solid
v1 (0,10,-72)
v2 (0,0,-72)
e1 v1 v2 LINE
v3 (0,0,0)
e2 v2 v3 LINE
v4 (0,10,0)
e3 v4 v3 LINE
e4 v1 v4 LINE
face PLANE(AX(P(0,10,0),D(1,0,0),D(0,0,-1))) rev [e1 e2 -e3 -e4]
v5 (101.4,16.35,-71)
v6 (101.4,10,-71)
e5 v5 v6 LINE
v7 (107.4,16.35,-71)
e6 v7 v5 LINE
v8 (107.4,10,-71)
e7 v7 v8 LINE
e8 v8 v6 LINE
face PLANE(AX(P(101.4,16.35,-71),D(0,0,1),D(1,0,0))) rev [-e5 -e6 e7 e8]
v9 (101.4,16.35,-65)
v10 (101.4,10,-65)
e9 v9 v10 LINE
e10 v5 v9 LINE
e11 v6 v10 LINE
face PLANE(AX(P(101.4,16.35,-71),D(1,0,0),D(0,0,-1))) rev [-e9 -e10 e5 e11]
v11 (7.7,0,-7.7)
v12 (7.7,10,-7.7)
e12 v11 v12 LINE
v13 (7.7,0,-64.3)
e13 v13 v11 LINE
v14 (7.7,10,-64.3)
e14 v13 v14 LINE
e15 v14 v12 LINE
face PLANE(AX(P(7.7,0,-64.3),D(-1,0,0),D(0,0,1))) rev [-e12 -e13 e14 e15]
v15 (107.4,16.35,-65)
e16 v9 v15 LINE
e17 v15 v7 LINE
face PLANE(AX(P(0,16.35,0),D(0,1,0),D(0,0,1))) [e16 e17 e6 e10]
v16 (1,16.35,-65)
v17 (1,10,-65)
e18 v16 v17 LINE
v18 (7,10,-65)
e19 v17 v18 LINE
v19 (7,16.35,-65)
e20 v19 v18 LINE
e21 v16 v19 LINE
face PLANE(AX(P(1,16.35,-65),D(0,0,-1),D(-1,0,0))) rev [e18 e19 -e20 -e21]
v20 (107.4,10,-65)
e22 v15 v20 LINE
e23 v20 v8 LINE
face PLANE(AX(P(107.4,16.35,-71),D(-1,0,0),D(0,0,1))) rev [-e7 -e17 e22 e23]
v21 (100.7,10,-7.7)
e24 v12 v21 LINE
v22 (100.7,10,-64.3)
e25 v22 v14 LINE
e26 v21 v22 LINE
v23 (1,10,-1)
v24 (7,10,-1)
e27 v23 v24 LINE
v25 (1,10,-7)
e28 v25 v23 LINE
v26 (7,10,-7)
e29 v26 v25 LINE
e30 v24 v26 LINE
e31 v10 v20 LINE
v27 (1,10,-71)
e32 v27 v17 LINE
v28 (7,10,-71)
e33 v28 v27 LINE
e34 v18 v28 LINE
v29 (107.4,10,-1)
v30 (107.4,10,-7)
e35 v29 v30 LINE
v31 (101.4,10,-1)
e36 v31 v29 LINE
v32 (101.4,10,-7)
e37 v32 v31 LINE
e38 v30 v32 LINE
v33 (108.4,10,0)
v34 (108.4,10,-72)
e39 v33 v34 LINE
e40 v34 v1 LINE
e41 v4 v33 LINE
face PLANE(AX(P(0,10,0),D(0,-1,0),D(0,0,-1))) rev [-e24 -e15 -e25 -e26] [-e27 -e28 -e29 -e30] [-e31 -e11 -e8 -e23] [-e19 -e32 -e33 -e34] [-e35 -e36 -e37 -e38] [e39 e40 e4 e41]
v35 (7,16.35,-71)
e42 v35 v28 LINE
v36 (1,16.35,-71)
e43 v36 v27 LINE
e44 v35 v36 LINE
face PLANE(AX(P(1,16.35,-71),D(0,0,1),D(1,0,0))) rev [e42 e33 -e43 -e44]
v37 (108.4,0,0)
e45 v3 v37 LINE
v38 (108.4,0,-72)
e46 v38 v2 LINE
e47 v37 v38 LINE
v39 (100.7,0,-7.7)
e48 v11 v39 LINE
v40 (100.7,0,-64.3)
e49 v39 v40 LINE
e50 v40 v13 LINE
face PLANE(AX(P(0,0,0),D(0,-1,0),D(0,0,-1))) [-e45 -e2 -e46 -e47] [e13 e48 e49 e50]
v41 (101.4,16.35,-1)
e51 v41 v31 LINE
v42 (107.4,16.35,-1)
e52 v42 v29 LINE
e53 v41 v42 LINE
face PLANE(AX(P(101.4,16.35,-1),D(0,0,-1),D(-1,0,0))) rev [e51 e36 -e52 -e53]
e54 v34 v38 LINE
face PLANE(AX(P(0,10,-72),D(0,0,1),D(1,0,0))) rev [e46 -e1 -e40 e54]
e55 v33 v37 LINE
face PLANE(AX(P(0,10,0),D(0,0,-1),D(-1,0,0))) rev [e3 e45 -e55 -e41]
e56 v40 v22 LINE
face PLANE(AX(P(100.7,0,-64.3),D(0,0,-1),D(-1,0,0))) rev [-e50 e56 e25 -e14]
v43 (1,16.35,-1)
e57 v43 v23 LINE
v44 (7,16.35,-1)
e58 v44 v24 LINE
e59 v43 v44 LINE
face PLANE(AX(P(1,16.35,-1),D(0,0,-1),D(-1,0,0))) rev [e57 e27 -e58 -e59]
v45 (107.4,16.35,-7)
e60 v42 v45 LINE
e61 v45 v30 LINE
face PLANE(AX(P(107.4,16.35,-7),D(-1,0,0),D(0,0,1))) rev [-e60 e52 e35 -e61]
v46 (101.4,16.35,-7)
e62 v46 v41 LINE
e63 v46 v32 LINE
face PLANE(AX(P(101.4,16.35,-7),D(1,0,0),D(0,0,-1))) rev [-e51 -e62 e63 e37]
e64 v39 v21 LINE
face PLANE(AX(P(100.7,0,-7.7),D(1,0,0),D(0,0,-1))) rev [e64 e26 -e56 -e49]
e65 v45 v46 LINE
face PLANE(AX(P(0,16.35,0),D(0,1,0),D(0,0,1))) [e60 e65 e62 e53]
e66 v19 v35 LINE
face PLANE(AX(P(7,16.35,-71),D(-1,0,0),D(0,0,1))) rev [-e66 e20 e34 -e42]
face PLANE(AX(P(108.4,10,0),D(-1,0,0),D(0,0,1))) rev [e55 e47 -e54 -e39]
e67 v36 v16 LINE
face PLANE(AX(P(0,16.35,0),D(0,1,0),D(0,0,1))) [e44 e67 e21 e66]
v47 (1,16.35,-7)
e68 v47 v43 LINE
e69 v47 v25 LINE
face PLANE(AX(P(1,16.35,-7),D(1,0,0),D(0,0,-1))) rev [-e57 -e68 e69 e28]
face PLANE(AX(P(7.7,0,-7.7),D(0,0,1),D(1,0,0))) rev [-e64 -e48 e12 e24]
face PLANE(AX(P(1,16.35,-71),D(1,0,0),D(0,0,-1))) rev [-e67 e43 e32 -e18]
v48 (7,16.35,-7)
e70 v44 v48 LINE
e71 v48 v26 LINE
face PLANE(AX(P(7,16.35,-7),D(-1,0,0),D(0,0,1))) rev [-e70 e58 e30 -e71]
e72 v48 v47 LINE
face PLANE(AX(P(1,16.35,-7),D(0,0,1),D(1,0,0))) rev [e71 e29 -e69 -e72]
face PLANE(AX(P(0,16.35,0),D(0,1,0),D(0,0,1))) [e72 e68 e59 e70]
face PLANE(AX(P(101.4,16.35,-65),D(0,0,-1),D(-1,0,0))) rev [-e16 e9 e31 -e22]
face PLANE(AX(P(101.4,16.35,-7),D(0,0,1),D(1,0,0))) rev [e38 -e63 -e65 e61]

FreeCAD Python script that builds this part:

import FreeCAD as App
import Part
import Sketcher

V = App.Vector
Q = App.Units.Quantity

doc = App.newDocument("Part")
body = doc.addObject("PartDesign::Body", "Body")

sketch1 = doc.addObject("Sketcher::SketchObject", "Sketch")
body.addObject(sketch1)
sketch1.AttachmentSupport = (doc.XZ_Plane, [""])
sketch1.MapMode = "FlatFace"
sketch1.addGeometry(Part.LineSegment(V(0, -72, 0), V(0, 0, 0)), False)
sketch1.addGeometry(Part.LineSegment(V(0, 0, 0), V(108, 0, 0)), False)
sketch1.addGeometry(Part.LineSegment(V(108, 0, 0), V(108, -72, 0)), False)
sketch1.addGeometry(Part.LineSegment(V(108, -72, 0), V(0, -72, 0)), False)
sketch1.addConstraint(Sketcher.Constraint("Coincident", 0, 2, 1, 1))
sketch1.addConstraint(Sketcher.Constraint("Coincident", 1, 2, 2, 1))
sketch1.addConstraint(Sketcher.Constraint("Coincident", 2, 2, 3, 1))
sketch1.addConstraint(Sketcher.Constraint("Coincident", 3, 2, 0, 1))
sketch1.addConstraint(Sketcher.Constraint("Vertical", 0))
sketch1.addConstraint(Sketcher.Constraint("Horizontal", 1))
sketch1.addConstraint(Sketcher.Constraint("Vertical", 2))
sketch1.addConstraint(Sketcher.Constraint("Horizontal", 3))
sketch1.addConstraint(Sketcher.Constraint("Coincident", 0, 2, -1, 1))
sketch1.addConstraint(Sketcher.Constraint("DistanceY", 0, 1, 0, 2, Q("72 mm")))
sketch1.addConstraint(Sketcher.Constraint("DistanceX", 1, 1, 1, 2, Q("108.4 mm")))
pad1 = doc.addObject("PartDesign::Pad", "Pad")
body.addObject(pad1)
pad1.Profile = sketch1
pad1.Length = 10
pad1.Reversed = True

sketch2 = doc.addObject("Sketcher::SketchObject", "Sketch001")
body.addObject(sketch2)
sketch2.AttachmentSupport = (doc.XZ_Plane, [""])
sketch2.MapMode = "FlatFace"
sketch2.AttachmentOffset = App.Placement(V(0, 0, -10), App.Rotation())
sketch2.addGeometry(Part.LineSegment(V(8, -64, 0), V(8, -8, 0)), False)
sketch2.addGeometry(Part.LineSegment(V(8, -8, 0), V(101, -8, 0)), False)
sketch2.addGeometry(Part.LineSegment(V(101, -8, 0), V(101, -64, 0)), False)
sketch2.addGeometry(Part.LineSegment(V(101, -64, 0), V(8, -64, 0)), False)
sketch2.addConstraint(Sketcher.Constraint("Coincident", 0, 2, 1, 1))
sketch2.addConstraint(Sketcher.Constraint("Coincident", 1, 2, 2, 1))
sketch2.addConstraint(Sketcher.Constraint("Coincident", 2, 2, 3, 1))
sketch2.addConstraint(Sketcher.Constraint("Coincident", 3, 2, 0, 1))
sketch2.addConstraint(Sketcher.Constraint("Vertical", 0))
sketch2.addConstraint(Sketcher.Constraint("Horizontal", 1))
sketch2.addConstraint(Sketcher.Constraint("Vertical", 2))
sketch2.addConstraint(Sketcher.Constraint("Horizontal", 3))
sketch2.addConstraint(Sketcher.Constraint("DistanceX", 1, 1, 1, 2, Q("93 mm")))
sketch2.addConstraint(Sketcher.Constraint("DistanceY", 0, 1, 0, 2, Q("56.6 mm")))
sketch2.addConstraint(Sketcher.Constraint("DistanceX", -1, 1, 0, 2, Q("7.7 mm")))
sketch2.addConstraint(Sketcher.Constraint("DistanceY", 0, 2, -1, 1, Q("7.7 mm")))
pocket1 = doc.addObject("PartDesign::Pocket", "Pocket")
body.addObject(pocket1)
pocket1.Profile = sketch2
pocket1.Type = "ThroughAll"
pocket1.Reversed = True

sketch3 = doc.addObject("Sketcher::SketchObject", "Sketch002")
body.addObject(sketch3)
sketch3.AttachmentSupport = (doc.XZ_Plane, [""])
sketch3.MapMode = "FlatFace"
sketch3.AttachmentOffset = App.Placement(V(0, 0, -10), App.Rotation())
sketch3.addGeometry(Part.LineSegment(V(1, -7, 0), V(1, -1, 0)), False)
sketch3.addGeometry(Part.LineSegment(V(1, -1, 0), V(7, -1, 0)), False)
sketch3.addGeometry(Part.LineSegment(V(7, -1, 0), V(7, -7, 0)), False)
sketch3.addGeometry(Part.LineSegment(V(7, -7, 0), V(1, -7, 0)), False)
sketch3.addConstraint(Sketcher.Constraint("Coincident", 0, 2, 1, 1))
sketch3.addConstraint(Sketcher.Constraint("Coincident", 1, 2, 2, 1))
sketch3.addConstraint(Sketcher.Constraint("Coincident", 2, 2, 3, 1))
sketch3.addConstraint(Sketcher.Constraint("Coincident", 3, 2, 0, 1))
sketch3.addConstraint(Sketcher.Constraint("Vertical", 0))
sketch3.addConstraint(Sketcher.Constraint("Horizontal", 1))
sketch3.addConstraint(Sketcher.Constraint("Vertical", 2))
sketch3.addConstraint(Sketcher.Constraint("Horizontal", 3))
sketch3.addConstraint(Sketcher.Constraint("Equal", 3, 0))
sketch3.addConstraint(Sketcher.Constraint("DistanceX", 1, 1, 1, 2, Q("6 mm")))
sketch3.addConstraint(Sketcher.Constraint("DistanceX", -1, 1, 0, 2, Q("1 mm")))
sketch3.addConstraint(Sketcher.Constraint("DistanceY", 0, 2, -1, 1, Q("1 mm")))
pad2 = doc.addObject("PartDesign::Pad", "Pad001")
body.addObject(pad2)
pad2.Profile = sketch3
pad2.Length = 6.35
pad2.Reversed = True

sketch4 = doc.addObject("Sketcher::SketchObject", "Sketch003")
body.addObject(sketch4)
sketch4.AttachmentSupport = (doc.XZ_Plane, [""])
sketch4.MapMode = "FlatFace"
sketch4.AttachmentOffset = App.Placement(V(0, 0, -10), App.Rotation())
sketch4.addGeometry(Part.LineSegment(V(101, -7, 0), V(101, -1, 0)), False)
sketch4.addGeometry(Part.LineSegment(V(101, -1, 0), V(107, -1, 0)), False)
sketch4.addGeometry(Part.LineSegment(V(107, -1, 0), V(107, -7, 0)), False)
sketch4.addGeometry(Part.LineSegment(V(107, -7, 0), V(101, -7, 0)), False)
sketch4.addConstraint(Sketcher.Constraint("Coincident", 0, 2, 1, 1))
sketch4.addConstraint(Sketcher.Constraint("Coincident", 1, 2, 2, 1))
sketch4.addConstraint(Sketcher.Constraint("Coincident", 2, 2, 3, 1))
sketch4.addConstraint(Sketcher.Constraint("Coincident", 3, 2, 0, 1))
sketch4.addConstraint(Sketcher.Constraint("Vertical", 0))
sketch4.addConstraint(Sketcher.Constraint("Horizontal", 1))
sketch4.addConstraint(Sketcher.Constraint("Vertical", 2))
sketch4.addConstraint(Sketcher.Constraint("Horizontal", 3))
sketch4.addConstraint(Sketcher.Constraint("Equal", 3, 0))
sketch4.addConstraint(Sketcher.Constraint("DistanceX", 1, 1, 1, 2, Q("6 mm")))
sketch4.addConstraint(Sketcher.Constraint("DistanceY", 0, 2, -1, 1, Q("1 mm")))
sketch4.addConstraint(Sketcher.Constraint("DistanceX", -1, 1, 0, 2, Q("101.4 mm")))
pad3 = doc.addObject("PartDesign::Pad", "Pad002")
body.addObject(pad3)
pad3.Profile = sketch4
pad3.Length = 6.35
pad3.Reversed = True

sketch5 = doc.addObject("Sketcher::SketchObject", "Sketch004")
body.addObject(sketch5)
sketch5.AttachmentSupport = (doc.XZ_Plane, [""])
sketch5.MapMode = "FlatFace"
sketch5.AttachmentOffset = App.Placement(V(0, 0, -10), App.Rotation())
sketch5.addGeometry(Part.LineSegment(V(1, -71, 0), V(1, -65, 0)), False)
sketch5.addGeometry(Part.LineSegment(V(1, -65, 0), V(7, -65, 0)), False)
sketch5.addGeometry(Part.LineSegment(V(7, -65, 0), V(7, -71, 0)), False)
sketch5.addGeometry(Part.LineSegment(V(7, -71, 0), V(1, -71, 0)), False)
sketch5.addConstraint(Sketcher.Constraint("Coincident", 0, 2, 1, 1))
sketch5.addConstraint(Sketcher.Constraint("Coincident", 1, 2, 2, 1))
sketch5.addConstraint(Sketcher.Constraint("Coincident", 2, 2, 3, 1))
sketch5.addConstraint(Sketcher.Constraint("Coincident", 3, 2, 0, 1))
sketch5.addConstraint(Sketcher.Constraint("Vertical", 0))
sketch5.addConstraint(Sketcher.Constraint("Horizontal", 1))
sketch5.addConstraint(Sketcher.Constraint("Vertical", 2))
sketch5.addConstraint(Sketcher.Constraint("Horizontal", 3))
sketch5.addConstraint(Sketcher.Constraint("Equal", 3, 0))
sketch5.addConstraint(Sketcher.Constraint("DistanceX", 1, 1, 1, 2, Q("6 mm")))
sketch5.addConstraint(Sketcher.Constraint("DistanceX", -1, 1, 0, 2, Q("1 mm")))
sketch5.addConstraint(Sketcher.Constraint("DistanceY", 0, 2, -1, 1, Q("65 mm")))
pad4 = doc.addObject("PartDesign::Pad", "Pad003")
body.addObject(pad4)
pad4.Profile = sketch5
pad4.Length = 6.35
pad4.Reversed = True

sketch6 = doc.addObject("Sketcher::SketchObject", "Sketch005")
body.addObject(sketch6)
sketch6.AttachmentSupport = (doc.XZ_Plane, [""])
sketch6.MapMode = "FlatFace"
sketch6.AttachmentOffset = App.Placement(V(0, 0, -10), App.Rotation())
sketch6.addGeometry(Part.LineSegment(V(101, -71, 0), V(101, -65, 0)), False)
sketch6.addGeometry(Part.LineSegment(V(101, -65, 0), V(107, -65, 0)), False)
sketch6.addGeometry(Part.LineSegment(V(107, -65, 0), V(107, -71, 0)), False)
sketch6.addGeometry(Part.LineSegment(V(107, -71, 0), V(101, -71, 0)), False)
sketch6.addConstraint(Sketcher.Constraint("Coincident", 0, 2, 1, 1))
sketch6.addConstraint(Sketcher.Constraint("Coincident", 1, 2, 2, 1))
sketch6.addConstraint(Sketcher.Constraint("Coincident", 2, 2, 3, 1))
sketch6.addConstraint(Sketcher.Constraint("Coincident", 3, 2, 0, 1))
sketch6.addConstraint(Sketcher.Constraint("Vertical", 0))
sketch6.addConstraint(Sketcher.Constraint("Horizontal", 1))
sketch6.addConstraint(Sketcher.Constraint("Vertical", 2))
sketch6.addConstraint(Sketcher.Constraint("Horizontal", 3))
sketch6.addConstraint(Sketcher.Constraint("Equal", 3, 0))
sketch6.addConstraint(Sketcher.Constraint("DistanceX", 1, 1, 1, 2, Q("6 mm")))
sketch6.addConstraint(Sketcher.Constraint("DistanceY", 0, 2, -1, 1, Q("65 mm")))
sketch6.addConstraint(Sketcher.Constraint("DistanceX", -1, 1, 0, 2, Q("101.4 mm")))
pad5 = doc.addObject("PartDesign::Pad", "Pad004")
body.addObject(pad5)
pad5.Profile = sketch6
pad5.Length = 6.35
pad5.Reversed = True

doc.recompute()
